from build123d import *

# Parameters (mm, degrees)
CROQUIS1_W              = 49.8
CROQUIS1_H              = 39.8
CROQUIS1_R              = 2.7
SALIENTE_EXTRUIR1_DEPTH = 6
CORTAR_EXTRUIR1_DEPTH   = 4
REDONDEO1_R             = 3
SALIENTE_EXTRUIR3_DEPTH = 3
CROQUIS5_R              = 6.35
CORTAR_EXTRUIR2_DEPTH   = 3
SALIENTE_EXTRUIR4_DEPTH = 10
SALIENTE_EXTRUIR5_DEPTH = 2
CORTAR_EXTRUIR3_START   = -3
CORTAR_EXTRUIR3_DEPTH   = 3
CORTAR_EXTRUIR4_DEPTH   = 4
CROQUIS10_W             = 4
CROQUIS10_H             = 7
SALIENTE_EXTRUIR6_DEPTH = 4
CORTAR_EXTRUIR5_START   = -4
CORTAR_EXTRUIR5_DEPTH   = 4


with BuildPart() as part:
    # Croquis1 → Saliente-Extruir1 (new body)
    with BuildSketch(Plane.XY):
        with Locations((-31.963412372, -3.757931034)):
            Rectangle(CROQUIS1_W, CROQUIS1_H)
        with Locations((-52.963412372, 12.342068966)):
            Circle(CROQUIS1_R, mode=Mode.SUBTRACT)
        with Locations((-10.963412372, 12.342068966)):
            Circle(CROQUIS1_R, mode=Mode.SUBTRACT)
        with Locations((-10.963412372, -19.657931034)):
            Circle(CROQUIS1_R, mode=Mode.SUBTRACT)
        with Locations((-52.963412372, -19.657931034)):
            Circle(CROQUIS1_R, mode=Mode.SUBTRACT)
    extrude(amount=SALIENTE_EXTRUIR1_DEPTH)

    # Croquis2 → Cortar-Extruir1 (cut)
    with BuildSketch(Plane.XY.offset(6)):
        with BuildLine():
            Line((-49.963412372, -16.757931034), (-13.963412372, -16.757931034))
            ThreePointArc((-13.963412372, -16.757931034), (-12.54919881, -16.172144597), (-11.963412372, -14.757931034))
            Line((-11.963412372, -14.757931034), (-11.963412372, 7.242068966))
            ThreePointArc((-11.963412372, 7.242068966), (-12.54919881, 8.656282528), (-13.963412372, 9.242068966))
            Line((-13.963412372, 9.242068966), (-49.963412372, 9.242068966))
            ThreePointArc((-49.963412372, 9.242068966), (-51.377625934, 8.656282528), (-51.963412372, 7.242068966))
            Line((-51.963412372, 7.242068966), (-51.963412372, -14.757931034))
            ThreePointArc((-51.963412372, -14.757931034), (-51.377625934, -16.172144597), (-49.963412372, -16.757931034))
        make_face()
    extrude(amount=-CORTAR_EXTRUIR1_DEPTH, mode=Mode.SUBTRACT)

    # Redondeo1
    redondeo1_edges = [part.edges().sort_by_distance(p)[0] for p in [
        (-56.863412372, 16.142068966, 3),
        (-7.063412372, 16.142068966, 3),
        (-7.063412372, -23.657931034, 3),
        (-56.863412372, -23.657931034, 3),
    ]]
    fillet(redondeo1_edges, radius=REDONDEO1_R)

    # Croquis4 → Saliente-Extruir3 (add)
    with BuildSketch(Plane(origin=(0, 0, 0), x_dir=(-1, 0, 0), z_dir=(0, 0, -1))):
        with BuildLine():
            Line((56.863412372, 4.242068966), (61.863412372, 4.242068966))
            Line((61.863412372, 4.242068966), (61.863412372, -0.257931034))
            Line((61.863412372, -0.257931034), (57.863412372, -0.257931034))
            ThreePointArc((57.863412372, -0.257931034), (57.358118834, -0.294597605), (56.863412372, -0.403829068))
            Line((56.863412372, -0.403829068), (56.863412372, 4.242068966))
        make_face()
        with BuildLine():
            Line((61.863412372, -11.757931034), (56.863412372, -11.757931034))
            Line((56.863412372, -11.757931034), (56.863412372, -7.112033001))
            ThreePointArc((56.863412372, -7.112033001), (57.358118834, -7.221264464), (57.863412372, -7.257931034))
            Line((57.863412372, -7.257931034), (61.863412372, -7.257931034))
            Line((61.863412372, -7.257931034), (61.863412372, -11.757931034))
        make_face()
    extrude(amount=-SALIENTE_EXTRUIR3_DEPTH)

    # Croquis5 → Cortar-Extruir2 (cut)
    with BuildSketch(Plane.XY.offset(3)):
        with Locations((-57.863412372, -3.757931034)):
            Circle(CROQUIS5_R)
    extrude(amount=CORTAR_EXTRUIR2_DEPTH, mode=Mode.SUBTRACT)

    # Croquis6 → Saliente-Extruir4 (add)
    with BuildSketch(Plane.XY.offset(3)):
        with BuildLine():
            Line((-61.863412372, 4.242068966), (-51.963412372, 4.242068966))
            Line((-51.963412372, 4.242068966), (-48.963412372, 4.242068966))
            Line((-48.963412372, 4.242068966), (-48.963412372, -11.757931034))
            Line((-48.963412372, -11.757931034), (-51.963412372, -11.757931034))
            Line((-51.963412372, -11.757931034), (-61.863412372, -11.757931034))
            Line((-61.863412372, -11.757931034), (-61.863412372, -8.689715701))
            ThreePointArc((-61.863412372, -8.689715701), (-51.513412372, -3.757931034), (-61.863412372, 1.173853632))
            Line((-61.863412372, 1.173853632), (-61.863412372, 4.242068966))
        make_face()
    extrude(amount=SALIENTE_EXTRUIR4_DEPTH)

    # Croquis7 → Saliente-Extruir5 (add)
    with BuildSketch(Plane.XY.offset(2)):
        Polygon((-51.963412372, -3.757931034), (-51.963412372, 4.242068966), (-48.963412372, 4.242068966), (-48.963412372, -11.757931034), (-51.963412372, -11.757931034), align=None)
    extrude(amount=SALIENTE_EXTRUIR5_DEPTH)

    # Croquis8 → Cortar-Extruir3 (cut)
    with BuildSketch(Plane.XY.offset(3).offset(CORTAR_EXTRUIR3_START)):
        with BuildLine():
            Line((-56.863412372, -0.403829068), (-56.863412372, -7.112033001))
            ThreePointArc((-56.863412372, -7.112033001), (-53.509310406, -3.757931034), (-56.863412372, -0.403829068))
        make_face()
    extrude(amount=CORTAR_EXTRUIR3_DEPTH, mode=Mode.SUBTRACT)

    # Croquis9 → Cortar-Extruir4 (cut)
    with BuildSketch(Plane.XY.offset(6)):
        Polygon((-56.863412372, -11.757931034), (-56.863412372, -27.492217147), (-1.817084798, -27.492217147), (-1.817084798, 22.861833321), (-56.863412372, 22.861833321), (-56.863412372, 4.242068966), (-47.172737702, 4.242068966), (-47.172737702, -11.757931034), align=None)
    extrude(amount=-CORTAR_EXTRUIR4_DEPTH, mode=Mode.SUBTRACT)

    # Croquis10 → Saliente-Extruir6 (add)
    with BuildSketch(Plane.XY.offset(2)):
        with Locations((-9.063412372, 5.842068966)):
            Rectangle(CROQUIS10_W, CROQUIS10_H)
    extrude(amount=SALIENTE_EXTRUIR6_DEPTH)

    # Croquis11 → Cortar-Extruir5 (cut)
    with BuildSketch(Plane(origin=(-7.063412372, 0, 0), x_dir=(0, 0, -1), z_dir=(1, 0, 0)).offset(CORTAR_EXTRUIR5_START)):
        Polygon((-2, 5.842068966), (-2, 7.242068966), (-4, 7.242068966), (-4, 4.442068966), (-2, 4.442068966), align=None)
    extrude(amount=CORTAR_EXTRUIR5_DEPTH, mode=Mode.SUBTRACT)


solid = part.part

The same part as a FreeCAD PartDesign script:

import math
import FreeCAD as App
import Part
import Sketcher


def edges_at(feature, points):
    """Names of the edges that pass closest to the given points."""
    edges = feature.Shape.Edges
    near = lambda p: min(range(len(edges)), key=lambda i: edges[i].distToShape(Part.Vertex(*p))[0])
    return sorted({f"Edge{near(p) + 1}" for p in points})


def add_polygon(sketch, points):
    """Adds a closed chain of lines whose ends are joined by coincident constraints."""
    first, n = sketch.GeometryCount, len(points)
    for a, b in zip(points, points[1:] + points[:1]):
        sketch.addGeometry(Part.LineSegment(App.Vector(*a, 0), App.Vector(*b, 0)), False)
    for i in range(n):
        sketch.addConstraint(Sketcher.Constraint("Coincident", first + i, 2, first + (i + 1) % n, 1))

doc = App.newDocument("Part")
body = doc.addObject("PartDesign::Body", "Body")

# Sketch on XY plane
sketch1 = body.newObject("Sketcher::SketchObject", "Sketch")
sketch1.AttachmentSupport = (doc.getObject("XY_Plane"), [""])
sketch1.MapMode = "FlatFace"
add_polygon(sketch1, [(-56.863412, 16.142069), (-56.863412, -23.657931), (-7.063412, -23.657931), (-7.063412, 16.142069)])  # lines 0-3
sketch1.addGeometry(Part.Circle(App.Vector(-52.963412, -19.657931, 0), App.Vector(0, 0, 1), 2.7), False)  # 4
sketch1.addGeometry(Part.Circle(App.Vector(-10.963412, -19.657931, 0), App.Vector(0, 0, 1), 2.7), False)  # 5
sketch1.addGeometry(Part.Circle(App.Vector(-52.963412, 12.342069, 0), App.Vector(0, 0, 1), 2.7), False)  # 6
sketch1.addGeometry(Part.Circle(App.Vector(-10.963412, 12.342069, 0), App.Vector(0, 0, 1), 2.7), False)  # 7
sketch1.addConstraint([
    Sketcher.Constraint("Vertical", 0),
    Sketcher.Constraint("Horizontal", 1),
    Sketcher.Constraint("Vertical", 2),
    Sketcher.Constraint("Horizontal", 3),
    Sketcher.Constraint("Equal", 4, 5),
    Sketcher.Constraint("Equal", 5, 6),
    Sketcher.Constraint("Equal", 6, 7),
    Sketcher.Constraint("Horizontal", 4, 3, 5, 3),
    Sketcher.Constraint("Horizontal", 6, 3, 7, 3),
    Sketcher.Constraint("Vertical", 4, 3, 6, 3),
    Sketcher.Constraint("Vertical", 5, 3, 7, 3),
    Sketcher.Constraint("Diameter", 4, 5.4),
    Sketcher.Constraint("DistanceX", 1, 1, 1, 2, 49.8),
    Sketcher.Constraint("DistanceY", 0, 2, 0, 1, 39.8),
    Sketcher.Constraint("DistanceX", 4, 3, 5, 3, 42.0),
    Sketcher.Constraint("DistanceY", 4, 3, 6, 3, 32.0),
    Sketcher.Constraint("DistanceY", 0, 2, 4, 3, 4.0),
    Sketcher.Constraint("DistanceX", 0, 2, 4, 3, 3.9),
    Sketcher.Constraint("DistanceY", 4, 3, -1, 1, 19.657931),
    Sketcher.Constraint("DistanceX", 4, 3, -1, 1, 52.963412),
])
pad1 = body.newObject("PartDesign::Pad", "Pad")
pad1.Profile = sketch1
pad1.Length = 6

# Sketch on XY plane
sketch2 = body.newObject("Sketcher::SketchObject", "Sketch001")
sketch2.AttachmentSupport = (doc.getObject("XY_Plane"), [""])
sketch2.MapMode = "FlatFace"
sketch2.AttachmentOffset = App.Placement(App.Vector(0, 0, 6), App.Rotation())
sketch2.addGeometry([
    Part.LineSegment(App.Vector(-49.963412, -16.757931, 0), App.Vector(-13.963412, -16.757931, 0)),  # 0
    Part.ArcOfCircle(Part.Circle(App.Vector(-13.963412, -14.757931, 0), App.Vector(0, 0, 1), 2), math.radians(-90), math.radians(0)),  # 1
    Part.LineSegment(App.Vector(-11.963412, -14.757931, 0), App.Vector(-11.963412, 7.242069, 0)),  # 2
    Part.ArcOfCircle(Part.Circle(App.Vector(-13.963412, 7.242069, 0), App.Vector(0, 0, 1), 2), math.radians(0), math.radians(90)),  # 3
    Part.LineSegment(App.Vector(-13.963412, 9.242069, 0), App.Vector(-49.963412, 9.242069, 0)),  # 4
    Part.ArcOfCircle(Part.Circle(App.Vector(-49.963412, 7.242069, 0), App.Vector(0, 0, 1), 2), math.radians(90), math.radians(180)),  # 5
    Part.LineSegment(App.Vector(-51.963412, 7.242069, 0), App.Vector(-51.963412, -14.757931, 0)),  # 6
    Part.ArcOfCircle(Part.Circle(App.Vector(-49.963412, -14.757931, 0), App.Vector(0, 0, 1), 2), math.radians(180), math.radians(270)),  # 7
], False)
sketch2.addConstraint([
    Sketcher.Constraint("Tangent", 0, 2, 1, 1),
    Sketcher.Constraint("Tangent", 1, 2, 2, 1),
    Sketcher.Constraint("Tangent", 2, 2, 3, 1),
    Sketcher.Constraint("Tangent", 3, 2, 4, 1),
    Sketcher.Constraint("Tangent", 4, 2, 5, 1),
    Sketcher.Constraint("Tangent", 5, 2, 6, 1),
    Sketcher.Constraint("Tangent", 6, 2, 7, 1),
    Sketcher.Constraint("Tangent", 7, 2, 0, 1),
    Sketcher.Constraint("Horizontal", 0),
    Sketcher.Constraint("Vertical", 2),
    Sketcher.Constraint("Horizontal", 4),
    Sketcher.Constraint("Vertical", 6),
    Sketcher.Constraint("Equal", 1, 3),
    Sketcher.Constraint("Equal", 3, 5),
    Sketcher.Constraint("Equal", 5, 7),
    Sketcher.Constraint("Radius", 1, 2.0),
    Sketcher.Constraint("DistanceX", 0, 1, 0, 2, 36.0),
    Sketcher.Constraint("DistanceY", 2, 1, 2, 2, 22.0),
    Sketcher.Constraint("DistanceY", 1, 3, -1, 1, 14.757931),
    Sketcher.Constraint("DistanceX", 1, 3, -1, 1, 13.963412),
])
pocket1 = body.newObject("PartDesign::Pocket", "Pocket")
pocket1.Profile = sketch2
pocket1.Length = 4
doc.recompute()

fillet = body.newObject("PartDesign::Fillet", "Fillet")
fillet.Base = (pocket1, edges_at(pocket1, [
    (-56.863, 16.142, 3),
    (-7.063, 16.142, 3),
    (-7.063, -23.658, 3),
    (-56.863, -23.658, 3),
]))
fillet.Radius = 3

# Sketch on XY plane
sketch3 = body.newObject("Sketcher::SketchObject", "Sketch002")
sketch3.AttachmentSupport = (doc.getObject("XY_Plane"), [""])
sketch3.MapMode = "FlatFace"
sketch3.addGeometry([
    Part.LineSegment(App.Vector(-61.863412, 4.242069, 0), App.Vector(-56.863412, 4.242069, 0)),  # 0
    Part.LineSegment(App.Vector(-56.863412, 4.242069, 0), App.Vector(-56.863412, -0.403829, 0)),  # 1
    Part.ArcOfCircle(Part.Circle(App.Vector(-57.863412, -3.757931, 0), App.Vector(0, 0, 1), 3.5), math.radians(73.39845), math.radians(90)),  # 2
    Part.LineSegment(App.Vector(-57.863412, -0.257931, 0), App.Vector(-61.863412, -0.257931, 0)),  # 3
    Part.LineSegment(App.Vector(-61.863412, -0.257931, 0), App.Vector(-61.863412, 4.242069, 0)),  # 4
    Part.LineSegment(App.Vector(-56.863412, -11.757931, 0), App.Vector(-61.863412, -11.757931, 0)),  # 5
    Part.LineSegment(App.Vector(-61.863412, -11.757931, 0), App.Vector(-61.863412, -7.257931, 0)),  # 6
    Part.LineSegment(App.Vector(-61.863412, -7.257931, 0), App.Vector(-57.863412, -7.257931, 0)),  # 7
    Part.ArcOfCircle(Part.Circle(App.Vector(-57.863412, -3.757931, 0), App.Vector(0, 0, 1), 3.5), math.radians(-90), math.radians(-73.39845)),  # 8
    Part.LineSegment(App.Vector(-56.863412, -7.112033, 0), App.Vector(-56.863412, -11.757931, 0)),  # 9
], False)
sketch3.addConstraint([
    Sketcher.Constraint("Coincident", 0, 2, 1, 1),
    Sketcher.Constraint("Coincident", 1, 2, 2, 1),
    Sketcher.Constraint("Tangent", 2, 2, 3, 1),
    Sketcher.Constraint("Coincident", 3, 2, 4, 1),
    Sketcher.Constraint("Coincident", 4, 2, 0, 1),
    Sketcher.Constraint("Coincident", 5, 2, 6, 1),
    Sketcher.Constraint("Coincident", 6, 2, 7, 1),
    Sketcher.Constraint("Tangent", 7, 2, 8, 1),
    Sketcher.Constraint("Coincident", 8, 2, 9, 1),
    Sketcher.Constraint("Coincident", 9, 2, 5, 1),
    Sketcher.Constraint("Horizontal", 0),
    Sketcher.Constraint("Vertical", 1),
    Sketcher.Constraint("Horizontal", 3),
    Sketcher.Constraint("Vertical", 4),
    Sketcher.Constraint("Horizontal", 5),
    Sketcher.Constraint("Vertical", 6),
    Sketcher.Constraint("Horizontal", 7),
    Sketcher.Constraint("Vertical", 9),
    Sketcher.Constraint("Coincident", 8, 3, 2, 3),
    Sketcher.Constraint("Equal", 2, 8),
    Sketcher.Constraint("Vertical", 4, 2, 5, 2),
    Sketcher.Constraint("Vertical", 1, 2, 8, 2),
    Sketcher.Constraint("Equal", 4, 6),
    Sketcher.Constraint("Radius", 2, 3.5),
    Sketcher.Constraint("DistanceX", 0, 1, 0, 2, 5.0),
    Sketcher.Constraint("DistanceX", 3, 2, 3, 1, 4.0),
    Sketcher.Constraint("DistanceY", 4, 1, 4, 2, 4.5),
    Sketcher.Constraint("DistanceY", 2, 3, -1, 1, 3.757931),
    Sketcher.Constraint("DistanceX", 2, 3, -1, 1, 57.863412),
])
pad2 = body.newObject("PartDesign::Pad", "Pad001")
pad2.Profile = sketch3
pad2.Length = 3

# Sketch on XY plane
sketch4 = body.newObject("Sketcher::SketchObject", "Sketch003")
sketch4.AttachmentSupport = (doc.getObject("XY_Plane"), [""])
sketch4.MapMode = "FlatFace"
sketch4.AttachmentOffset = App.Placement(App.Vector(0, 0, 3), App.Rotation())
sketch4.addGeometry(Part.Circle(App.Vector(-57.863412, -3.757931, 0), App.Vector(0, 0, 1), 6.35), False)
sketch4.addConstraint([
    Sketcher.Constraint("Diameter", 0, 12.7),
    Sketcher.Constraint("DistanceY", 0, 3, -1, 1, 3.757931),
    Sketcher.Constraint("DistanceX", 0, 3, -1, 1, 57.863412),
])
pocket2 = body.newObject("PartDesign::Pocket", "Pocket001")
pocket2.Profile = sketch4
pocket2.Length = 3
pocket2.Reversed = True

# Sketch on XY plane
sketch5 = body.newObject("Sketcher::SketchObject", "Sketch004")
sketch5.AttachmentSupport = (doc.getObject("XY_Plane"), [""])
sketch5.MapMode = "FlatFace"
sketch5.AttachmentOffset = App.Placement(App.Vector(0, 0, 3), App.Rotation())
sketch5.addGeometry([
    Part.LineSegment(App.Vector(-48.963412, 4.242069, 0), App.Vector(-61.863412, 4.242069, 0)),  # 0
    Part.LineSegment(App.Vector(-61.863412, 4.242069, 0), App.Vector(-61.863412, 1.173854, 0)),  # 1
    Part.ArcOfCircle(Part.Circle(App.Vector(-57.863412, -3.757931, 0), App.Vector(0, 0, 1), 6.35), math.radians(-129.044313), math.radians(129.044313)),  # 2
    Part.LineSegment(App.Vector(-61.863412, -8.689716, 0), App.Vector(-61.863412, -11.757931, 0)),  # 3
    Part.LineSegment(App.Vector(-61.863412, -11.757931, 0), App.Vector(-48.963412, -11.757931, 0)),  # 4
    Part.LineSegment(App.Vector(-48.963412, -11.757931, 0), App.Vector(-48.963412, 4.242069, 0)),  # 5
], False)
sketch5.addConstraint([
    Sketcher.Constraint("Coincident", 0, 2, 1, 1),
    Sketcher.Constraint("Coincident", 1, 2, 2, 2),
    Sketcher.Constraint("Coincident", 2, 1, 3, 1),
    Sketcher.Constraint("Coincident", 3, 2, 4, 1),
    Sketcher.Constraint("Coincident", 4, 2, 5, 1),
    Sketcher.Constraint("Coincident", 5, 2, 0, 1),
    Sketcher.Constraint("Horizontal", 0),
    Sketcher.Constraint("Vertical", 1),
    Sketcher.Constraint("Vertical", 3),
    Sketcher.Constraint("Horizontal", 4),
    Sketcher.Constraint("Vertical", 5),
    Sketcher.Constraint("Vertical", 1, 2, 2, 1),
    Sketcher.Constraint("Equal", 1, 3),
    Sketcher.Constraint("DistanceY", 5, 1, 5, 2, 16.0),
    Sketcher.Constraint("Radius", 2, 6.35),
    Sketcher.Constraint("DistanceX", 0, 2, 0, 1, 12.9),
    Sketcher.Constraint("DistanceX", 0, 2, 2, 3, 4.0),
    Sketcher.Constraint("DistanceY", 2, 3, -1, 1, 3.757931),
    Sketcher.Constraint("DistanceX", 2, 3, -1, 1, 57.863412),
])
pad3 = body.newObject("PartDesign::Pad", "Pad002")
pad3.Profile = sketch5
pad3.Length = 10

# Sketch on XY plane
sketch6 = body.newObject("Sketcher::SketchObject", "Sketch005")
sketch6.AttachmentSupport = (doc.getObject("XY_Plane"), [""])
sketch6.MapMode = "FlatFace"
sketch6.AttachmentOffset = App.Placement(App.Vector(0, 0, 2), App.Rotation())
add_polygon(sketch6, [(-51.963412, 4.242069), (-51.963412, -11.757931), (-48.963412, -11.757931), (-48.963412, 4.242069)])  # lines 0-3
sketch6.addConstraint([
    Sketcher.Constraint("Vertical", 0),
    Sketcher.Constraint("Horizontal", 1),
    Sketcher.Constraint("Vertical", 2),
    Sketcher.Constraint("Horizontal", 3),
    Sketcher.Constraint("DistanceX", 1, 1, 1, 2, 3.0),
    Sketcher.Constraint("DistanceY", 0, 2, 0, 1, 16.0),
    Sketcher.Constraint("DistanceY", 0, 2, -1, 1, 11.757931),
    Sketcher.Constraint("DistanceX", 0, 2, -1, 1, 51.963412),
])
pad4 = body.newObject("PartDesign::Pad", "Pad003")
pad4.Profile = sketch6
pad4.Length = 2

# Sketch on XY plane
sketch7 = body.newObject("Sketcher::SketchObject", "Sketch006")
sketch7.AttachmentSupport = (doc.getObject("XY_Plane"), [""])
sketch7.MapMode = "FlatFace"
sketch7.addGeometry([
    Part.LineSegment(App.Vector(-56.863412, -0.403829, 0), App.Vector(-56.863412, -7.112033, 0)),
    Part.ArcOfCircle(Part.Circle(App.Vector(-56.863412, -3.757931, 0), App.Vector(0, 0, 1), 3.354102), math.radians(-90), math.radians(90)),
], False)
sketch7.addConstraint([
    Sketcher.Constraint("Coincident", 0, 1, 1, 2),
    Sketcher.Constraint("Coincident", 1, 1, 0, 2),
    Sketcher.Constraint("Vertical", 0),
    Sketcher.Constraint("Vertical", 1, 3, 0, 1),
    Sketcher.Constraint("Radius", 1, 3.354102),
    Sketcher.Constraint("DistanceY", 1, 3, -1, 1, 3.757931),
    Sketcher.Constraint("DistanceX", 1, 3, -1, 1, 56.863412),
])
pocket3 = body.newObject("PartDesign::Pocket", "Pocket002")
pocket3.Profile = sketch7
pocket3.Length = 3
pocket3.Reversed = True

# Sketch on XY plane
sketch8 = body.newObject("Sketcher::SketchObject", "Sketch007")
sketch8.AttachmentSupport = (doc.getObject("XY_Plane"), [""])
sketch8.MapMode = "FlatFace"
sketch8.AttachmentOffset = App.Placement(App.Vector(0, 0, 6), App.Rotation())
add_polygon(sketch8, [(-56.863412, -11.757931), (-56.863412, -27.492217), (-1.817085, -27.492217), (-1.817085, 22.861833), (-56.863412, 22.861833), (-56.863412, 4.242069), (-47.172738, 4.242069), (-47.172738, -11.757931)])  # lines 0-7
sketch8.addConstraint([
    Sketcher.Constraint("Vertical", 0),
    Sketcher.Constraint("Horizontal", 1),
    Sketcher.Constraint("Vertical", 2),
    Sketcher.Constraint("Horizontal", 3),
    Sketcher.Constraint("Vertical", 4),
    Sketcher.Constraint("Horizontal", 5),
    Sketcher.Constraint("Vertical", 6),
    Sketcher.Constraint("Horizontal", 7),
    Sketcher.Constraint("Vertical", 0, 2, 3, 2),
    Sketcher.Constraint("DistanceY", 6, 2, 6, 1, 16.0),
    Sketcher.Constraint("DistanceY", 2, 1, 2, 2, 50.35405),
    Sketcher.Constraint("DistanceX", 1, 1, 1, 2, 55.046328),
    Sketcher.Constraint("DistanceX", 5, 1, 5, 2, 9.690675),
    Sketcher.Constraint("DistanceY", 0, 2, 0, 1, 15.734286),
    Sketcher.Constraint("DistanceY", -1, 1, 4, 2, 4.242069),
    Sketcher.Constraint("DistanceX", 0, 2, -1, 1, 56.863412),
])
pocket4 = body.newObject("PartDesign::Pocket", "Pocket003")
pocket4.Profile = sketch8
pocket4.Length = 4

# Sketch on XY plane
sketch9 = body.newObject("Sketcher::SketchObject", "Sketch008")
sketch9.AttachmentSupport = (doc.getObject("XY_Plane"), [""])
sketch9.MapMode = "FlatFace"
sketch9.AttachmentOffset = App.Placement(App.Vector(0, 0, 2), App.Rotation())
add_polygon(sketch9, [(-11.063412, 9.342069), (-11.063412, 2.342069), (-7.063412, 2.342069), (-7.063412, 9.342069)])  # lines 0-3
sketch9.addConstraint([
    Sketcher.Constraint("Vertical", 0),
    Sketcher.Constraint("Horizontal", 1),
    Sketcher.Constraint("Vertical", 2),
    Sketcher.Constraint("Horizontal", 3),
    Sketcher.Constraint("DistanceX", 1, 1, 1, 2, 4.0),
    Sketcher.Constraint("DistanceY", 0, 2, 0, 1, 7.0),
    Sketcher.Constraint("DistanceY", -1, 1, 0, 2, 2.342069),
    Sketcher.Constraint("DistanceX", 0, 2, -1, 1, 11.063412),
])
pad5 = body.newObject("PartDesign::Pad", "Pad004")
pad5.Profile = sketch9
pad5.Length = 4

# Sketch on YZ plane
sketch10 = body.newObject("Sketcher::SketchObject", "Sketch009")
sketch10.AttachmentSupport = (doc.getObject("YZ_Plane"), [""])
sketch10.MapMode = "FlatFace"
sketch10.AttachmentOffset = App.Placement(App.Vector(0, 0, -11.063412), App.Rotation())
add_polygon(sketch10, [(7.242069, 2), (7.242069, 4), (4.442069, 4), (4.442069, 2)])  # lines 0-3
sketch10.addConstraint([
    Sketcher.Constraint("Vertical", 0),
    Sketcher.Constraint("Horizontal", 1),
    Sketcher.Constraint("Vertical", 2),
    Sketcher.Constraint("Horizontal", 3),
    Sketcher.Constraint("DistanceY", 0, 1, 0, 2, 2.0),
    Sketcher.Constraint("DistanceX", 1, 2, 1, 1, 2.8),
    Sketcher.Constraint("DistanceY", -1, 1, 0, 2, 4.0),
    Sketcher.Constraint("DistanceX", -1, 1, 0, 2, 7.242069),
])
pocket5 = body.newObject("PartDesign::Pocket", "Pocket004")
pocket5.Profile = sketch10
pocket5.Length = 4
pocket5.Reversed = True

doc.recompute()
